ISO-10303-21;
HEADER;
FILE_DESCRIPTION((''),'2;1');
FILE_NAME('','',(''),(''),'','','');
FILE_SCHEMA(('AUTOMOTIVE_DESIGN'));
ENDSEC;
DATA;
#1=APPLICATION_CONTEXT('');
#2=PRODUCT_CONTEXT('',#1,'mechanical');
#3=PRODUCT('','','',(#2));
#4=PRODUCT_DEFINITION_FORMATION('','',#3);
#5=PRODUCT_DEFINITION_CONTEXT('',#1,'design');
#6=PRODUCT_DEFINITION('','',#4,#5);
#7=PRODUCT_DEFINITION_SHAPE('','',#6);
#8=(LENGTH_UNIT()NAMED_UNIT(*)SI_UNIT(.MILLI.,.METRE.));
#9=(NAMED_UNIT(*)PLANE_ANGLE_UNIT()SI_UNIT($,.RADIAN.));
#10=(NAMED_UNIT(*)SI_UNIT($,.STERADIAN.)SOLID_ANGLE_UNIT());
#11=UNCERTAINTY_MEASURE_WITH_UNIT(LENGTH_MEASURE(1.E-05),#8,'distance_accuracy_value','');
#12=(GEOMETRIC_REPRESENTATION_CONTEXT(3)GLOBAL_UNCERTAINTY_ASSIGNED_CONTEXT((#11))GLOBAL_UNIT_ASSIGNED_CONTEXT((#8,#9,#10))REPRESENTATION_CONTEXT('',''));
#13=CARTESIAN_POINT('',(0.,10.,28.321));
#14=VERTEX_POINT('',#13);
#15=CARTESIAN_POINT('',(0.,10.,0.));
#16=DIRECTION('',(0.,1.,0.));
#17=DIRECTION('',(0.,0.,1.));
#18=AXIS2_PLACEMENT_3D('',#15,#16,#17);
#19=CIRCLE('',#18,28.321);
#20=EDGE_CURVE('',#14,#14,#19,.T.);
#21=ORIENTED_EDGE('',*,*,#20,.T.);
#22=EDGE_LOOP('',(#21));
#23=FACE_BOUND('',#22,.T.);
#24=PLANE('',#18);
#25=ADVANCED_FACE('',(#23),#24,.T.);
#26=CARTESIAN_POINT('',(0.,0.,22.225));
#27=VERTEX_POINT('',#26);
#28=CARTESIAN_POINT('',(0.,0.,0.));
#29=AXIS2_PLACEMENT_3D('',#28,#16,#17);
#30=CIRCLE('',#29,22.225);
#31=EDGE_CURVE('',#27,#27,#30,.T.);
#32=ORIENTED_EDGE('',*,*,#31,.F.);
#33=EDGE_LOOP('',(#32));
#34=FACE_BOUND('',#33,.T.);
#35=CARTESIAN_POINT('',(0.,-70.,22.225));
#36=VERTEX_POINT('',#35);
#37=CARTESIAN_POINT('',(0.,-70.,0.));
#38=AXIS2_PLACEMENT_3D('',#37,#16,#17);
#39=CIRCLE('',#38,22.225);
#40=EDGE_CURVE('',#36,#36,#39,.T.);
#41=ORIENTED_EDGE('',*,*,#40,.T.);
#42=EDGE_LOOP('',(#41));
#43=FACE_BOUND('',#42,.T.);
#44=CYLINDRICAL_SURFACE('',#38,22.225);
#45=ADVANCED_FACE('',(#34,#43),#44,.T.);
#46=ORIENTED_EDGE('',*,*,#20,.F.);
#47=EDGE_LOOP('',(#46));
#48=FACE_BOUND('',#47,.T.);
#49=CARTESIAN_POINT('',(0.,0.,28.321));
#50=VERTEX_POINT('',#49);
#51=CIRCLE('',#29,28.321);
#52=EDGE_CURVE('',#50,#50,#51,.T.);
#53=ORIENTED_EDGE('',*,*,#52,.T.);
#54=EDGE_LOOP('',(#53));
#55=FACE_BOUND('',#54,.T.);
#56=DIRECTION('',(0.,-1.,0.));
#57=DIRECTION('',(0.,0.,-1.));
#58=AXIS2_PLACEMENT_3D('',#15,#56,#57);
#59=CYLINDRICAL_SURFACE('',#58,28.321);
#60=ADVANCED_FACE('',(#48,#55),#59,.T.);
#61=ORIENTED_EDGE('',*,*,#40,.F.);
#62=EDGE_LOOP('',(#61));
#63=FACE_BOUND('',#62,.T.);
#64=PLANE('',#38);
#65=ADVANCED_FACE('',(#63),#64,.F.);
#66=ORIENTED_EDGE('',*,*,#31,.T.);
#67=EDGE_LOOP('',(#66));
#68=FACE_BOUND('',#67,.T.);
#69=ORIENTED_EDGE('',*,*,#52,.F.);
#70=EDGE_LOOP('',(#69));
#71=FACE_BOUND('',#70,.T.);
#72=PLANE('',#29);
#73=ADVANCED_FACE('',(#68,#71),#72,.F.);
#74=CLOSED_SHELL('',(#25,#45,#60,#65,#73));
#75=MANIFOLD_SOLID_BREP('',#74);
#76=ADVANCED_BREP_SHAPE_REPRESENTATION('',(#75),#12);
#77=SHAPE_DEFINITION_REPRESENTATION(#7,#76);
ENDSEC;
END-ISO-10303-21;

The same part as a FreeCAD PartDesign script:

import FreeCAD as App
import Part
import Sketcher
from FreeCAD import Vector

doc = App.newDocument("Part")
body = doc.addObject("PartDesign::Body", "Body")

sketch1 = body.newObject("Sketcher::SketchObject", "Sketch")
sketch1.AttachmentSupport = (doc.getObject("XZ_Plane"), [""])
sketch1.MapMode = "FlatFace"
sketch1.addGeometry(Part.Circle(Vector(0, 0, 0), Vector(0, 0, 1), 28), False)
sketch1.addGeometry(Part.Circle(Vector(0, 0, 0), Vector(0, 0, 1), 22), False)
sketch1.addConstraint(Sketcher.Constraint("Coincident", 0, 3, -1, 1))
sketch1.addConstraint(Sketcher.Constraint("Coincident", 1, 3, -1, 1))
sketch1.addConstraint(Sketcher.Constraint("Diameter", 1, 44.45))
sketch1.addConstraint(Sketcher.Constraint("Diameter", 0, 56.642))
pad1 = body.newObject("PartDesign::Pad", "Pad")
pad1.Profile = sketch1
pad1.Length = 10
pad1.Reversed = True
body2 = doc.addObject("PartDesign::Body", "Body001")

sketch2 = body2.newObject("Sketcher::SketchObject", "Sketch001")
sketch2.AttachmentSupport = (doc.getObject("XZ_Plane001"), [""])
sketch2.MapMode = "FlatFace"
sketch2.addGeometry(Part.Circle(Vector(0, 0, 0), Vector(0, 0, 1), 22), False)
sketch2.addConstraint(Sketcher.Constraint("Coincident", 0, 3, -1, 1))
sketch2.addConstraint(Sketcher.Constraint("Diameter", 0, 44.45))
pad2 = body2.newObject("PartDesign::Pad", "Pad001")
pad2.Profile = sketch2
pad2.Length = 70
body.AllowCompound = True
doc.recompute()

boolean = body.newObject("PartDesign::Boolean", "Boolean")
boolean.Type = "Fuse"
boolean.addObjects([body2])

sketch3 = body.newObject("Sketcher::SketchObject", "Sketch002")
sketch3.AttachmentSupport = (doc.getObject("XZ_Plane"), [""])
sketch3.MapMode = "FlatFace"
sketch3.addGeometry(Part.Circle(Vector(0, 0, 0), Vector(0, 0, 1), 22), False)
sketch3.addConstraint(Sketcher.Constraint("Coincident", 0, 3, -1, 1))
sketch3.addConstraint(Sketcher.Constraint("Diameter", 0, 44.45))
pad3 = body.newObject("PartDesign::Pad", "Pad002")
pad3.Profile = sketch3
pad3.Length = 10
pad3.Reversed = True

doc.recompute()
